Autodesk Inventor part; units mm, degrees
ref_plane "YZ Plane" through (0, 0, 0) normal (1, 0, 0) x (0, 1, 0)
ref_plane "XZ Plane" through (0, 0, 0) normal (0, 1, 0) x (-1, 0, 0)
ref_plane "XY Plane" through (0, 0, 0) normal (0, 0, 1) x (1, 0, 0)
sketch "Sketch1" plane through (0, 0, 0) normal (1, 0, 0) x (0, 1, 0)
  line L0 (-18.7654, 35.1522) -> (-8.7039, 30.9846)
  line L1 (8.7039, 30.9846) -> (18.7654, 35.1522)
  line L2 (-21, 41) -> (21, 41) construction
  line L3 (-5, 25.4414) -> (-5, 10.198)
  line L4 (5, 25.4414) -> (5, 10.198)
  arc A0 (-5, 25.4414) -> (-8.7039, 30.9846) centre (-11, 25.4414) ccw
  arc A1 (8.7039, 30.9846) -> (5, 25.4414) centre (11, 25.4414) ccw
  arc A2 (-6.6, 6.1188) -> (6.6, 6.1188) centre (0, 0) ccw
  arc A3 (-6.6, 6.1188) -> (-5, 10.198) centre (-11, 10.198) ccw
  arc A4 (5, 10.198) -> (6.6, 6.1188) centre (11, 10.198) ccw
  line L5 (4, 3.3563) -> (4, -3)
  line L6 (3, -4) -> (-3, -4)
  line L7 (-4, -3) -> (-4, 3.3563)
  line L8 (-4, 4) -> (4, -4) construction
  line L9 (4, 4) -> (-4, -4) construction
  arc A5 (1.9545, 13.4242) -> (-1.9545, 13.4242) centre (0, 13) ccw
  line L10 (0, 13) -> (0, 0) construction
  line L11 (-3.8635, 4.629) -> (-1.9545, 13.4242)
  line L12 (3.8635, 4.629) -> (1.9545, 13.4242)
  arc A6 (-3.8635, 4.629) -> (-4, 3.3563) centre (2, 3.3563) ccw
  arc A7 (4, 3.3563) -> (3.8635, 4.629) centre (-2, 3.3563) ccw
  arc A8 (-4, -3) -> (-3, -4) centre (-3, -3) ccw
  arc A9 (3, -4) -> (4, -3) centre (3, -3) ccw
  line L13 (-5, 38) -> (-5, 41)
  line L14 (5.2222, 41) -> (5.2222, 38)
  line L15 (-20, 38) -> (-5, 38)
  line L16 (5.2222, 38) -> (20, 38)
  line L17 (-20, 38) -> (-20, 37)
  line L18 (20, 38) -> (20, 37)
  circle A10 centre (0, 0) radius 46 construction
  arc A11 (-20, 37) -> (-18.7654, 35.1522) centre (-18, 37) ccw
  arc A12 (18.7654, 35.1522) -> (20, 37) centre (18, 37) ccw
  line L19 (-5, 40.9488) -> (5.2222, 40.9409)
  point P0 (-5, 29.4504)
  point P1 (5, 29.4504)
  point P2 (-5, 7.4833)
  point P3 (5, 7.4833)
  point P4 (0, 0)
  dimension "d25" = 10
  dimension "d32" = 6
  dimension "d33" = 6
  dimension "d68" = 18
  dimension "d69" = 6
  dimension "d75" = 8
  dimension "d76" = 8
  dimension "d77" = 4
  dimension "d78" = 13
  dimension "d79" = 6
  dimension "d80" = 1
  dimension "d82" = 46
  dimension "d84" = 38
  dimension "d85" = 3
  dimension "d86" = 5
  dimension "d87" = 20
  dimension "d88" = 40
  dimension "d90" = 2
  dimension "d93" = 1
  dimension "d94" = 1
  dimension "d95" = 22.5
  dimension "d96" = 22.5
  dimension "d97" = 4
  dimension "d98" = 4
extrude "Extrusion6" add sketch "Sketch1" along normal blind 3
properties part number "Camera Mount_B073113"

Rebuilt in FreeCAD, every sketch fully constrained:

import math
import FreeCAD as App
import Part
import Sketcher
from FreeCAD import Vector

doc = App.newDocument("Part")
body = doc.addObject("PartDesign::Body", "Body")

sketch1 = body.newObject("Sketcher::SketchObject", "Sketch")
sketch1.AttachmentSupport = (doc.getObject("YZ_Plane"), [""])
sketch1.MapMode = "FlatFace"
sketch1.addGeometry([
    Part.ArcOfCircle(Part.Circle(Vector(-18, 37, 0), Vector(0, 0, 1), 2), math.radians(180), math.radians(247.499572)),
    Part.LineSegment(Vector(-18.7654, 35.1522, 0), Vector(-8.7039, 30.9846, 0)),
    Part.ArcOfCircle(Part.Circle(Vector(-11, 25.4414, 0), Vector(0, 0, 1), 6), math.radians(0), math.radians(67.499723)),
    Part.LineSegment(Vector(-5, 25.4414, 0), Vector(-5, 10.198, 0)),
    Part.ArcOfCircle(Part.Circle(Vector(-11, 10.198, 0), Vector(0, 0, 1), 5.999989), math.radians(-42.833319), math.radians(0)),
    Part.ArcOfCircle(Part.Circle(Vector(0, 0, 0), Vector(0, 0, 1), 8.999984), math.radians(137.166681), math.radians(402.833319)),
    Part.ArcOfCircle(Part.Circle(Vector(11, 10.198, 0), Vector(0, 0, 1), 6), math.radians(180), math.radians(222.833319)),
    Part.LineSegment(Vector(5, 10.198, 0), Vector(5, 25.4414, 0)),
    Part.ArcOfCircle(Part.Circle(Vector(11, 25.4414, 0), Vector(0, 0, 1), 5.999928), math.radians(112.500277), math.radians(180)),
    Part.LineSegment(Vector(8.7039, 30.9846, 0), Vector(18.7654, 35.1522, 0)),
    Part.ArcOfCircle(Part.Circle(Vector(18, 37, 0), Vector(0, 0, 1), 2.00005), math.radians(-67.499572), math.radians(0)),
    Part.LineSegment(Vector(20, 37, 0), Vector(20, 38, 0)),
    Part.LineSegment(Vector(20, 38, 0), Vector(5.2222, 38, 0)),
    Part.LineSegment(Vector(5.2222, 38, 0), Vector(5.2222, 40.9409, 0)),
    Part.LineSegment(Vector(5.2222, 40.9409, 0), Vector(-5, 40.9488, 0)),
    Part.LineSegment(Vector(-5, 40.9488, 0), Vector(-5, 38, 0)),
    Part.LineSegment(Vector(-5, 38, 0), Vector(-20, 38, 0)),
    Part.LineSegment(Vector(-20, 38, 0), Vector(-20, 37, 0)),
    Part.ArcOfCircle(Part.Circle(Vector(-2.002905, 3.356145, 0), Vector(0, 0, 1), 6.002905), math.radians(0.001483), math.radians(12.241923)),
    Part.LineSegment(Vector(4, 3.3563, 0), Vector(4, -3, 0)),
    Part.ArcOfCircle(Part.Circle(Vector(3, -3, 0), Vector(0, 0, 1), 1), math.radians(-90), math.radians(0)),
    Part.LineSegment(Vector(3, -4, 0), Vector(-3, -4, 0)),
    Part.ArcOfCircle(Part.Circle(Vector(-3, -3, 0), Vector(0, 0, 1), 1), math.radians(180), math.radians(270)),
    Part.LineSegment(Vector(-4, -3, 0), Vector(-4, 3.3563, 0)),
    Part.ArcOfCircle(Part.Circle(Vector(1.997131, 3.356764, 0), Vector(0, 0, 1), 5.997131), math.radians(167.752163), math.radians(180.004432)),
    Part.LineSegment(Vector(-3.8635, 4.629, 0), Vector(-1.9545, 13.4242, 0)),
    Part.ArcOfCircle(Part.Circle(Vector(0, 13, 0), Vector(0, 0, 1), 2.000004), math.radians(12.245421), math.radians(167.754579)),
    Part.LineSegment(Vector(1.9545, 13.4242, 0), Vector(3.8635, 4.629, 0)),
], False)
sketch1.addConstraint([
    Sketcher.Constraint("Coincident", 0, 2, 1, 1),
    Sketcher.Constraint("Coincident", 1, 2, 2, 2),
    Sketcher.Constraint("Coincident", 2, 1, 3, 1),
    Sketcher.Constraint("Coincident", 3, 2, 4, 2),
    Sketcher.Constraint("Coincident", 4, 1, 5, 1),
    Sketcher.Constraint("Coincident", 5, 2, 6, 2),
    Sketcher.Constraint("Coincident", 6, 1, 7, 1),
    Sketcher.Constraint("Coincident", 7, 2, 8, 2),
    Sketcher.Constraint("Coincident", 8, 1, 9, 1),
    Sketcher.Constraint("Coincident", 9, 2, 10, 1),
    Sketcher.Constraint("Coincident", 10, 2, 11, 1),
    Sketcher.Constraint("Coincident", 11, 2, 12, 1),
    Sketcher.Constraint("Coincident", 12, 2, 13, 1),
    Sketcher.Constraint("Coincident", 13, 2, 14, 1),
    Sketcher.Constraint("Coincident", 14, 2, 15, 1),
    Sketcher.Constraint("Coincident", 15, 2, 16, 1),
    Sketcher.Constraint("Coincident", 16, 2, 17, 1),
    Sketcher.Constraint("Coincident", 17, 2, 0, 1),
    Sketcher.Constraint("Coincident", 18, 1, 19, 1),
    Sketcher.Constraint("Coincident", 19, 2, 20, 2),
    Sketcher.Constraint("Coincident", 20, 1, 21, 1),
    Sketcher.Constraint("Coincident", 21, 2, 22, 2),
    Sketcher.Constraint("Coincident", 22, 1, 23, 1),
    Sketcher.Constraint("Coincident", 23, 2, 24, 2),
    Sketcher.Constraint("Coincident", 24, 1, 25, 1),
    Sketcher.Constraint("Coincident", 25, 2, 26, 2),
    Sketcher.Constraint("Coincident", 26, 1, 27, 1),
    Sketcher.Constraint("Coincident", 27, 2, 18, 2),
    Sketcher.Constraint("Vertical", 3),
    Sketcher.Constraint("Vertical", 7),
    Sketcher.Constraint("Vertical", 11),
    Sketcher.Constraint("Horizontal", 12),
    Sketcher.Constraint("Vertical", 13),
    Sketcher.Constraint("Vertical", 15),
    Sketcher.Constraint("Horizontal", 16),
    Sketcher.Constraint("Vertical", 17),
    Sketcher.Constraint("Vertical", 19),
    Sketcher.Constraint("Horizontal", 21),
    Sketcher.Constraint("Vertical", 23),
    Sketcher.Constraint("Coincident", 5, 3, -1, 1),
    Sketcher.Constraint("PointOnObject", 26, 3, -2),
    Sketcher.Constraint("Radius", 0, 2.0),
    Sketcher.Constraint("Radius", 2, 6.0),
    Sketcher.Constraint("Radius", 4, 6.0),
    Sketcher.Constraint("Radius", 5, 9.0),
    Sketcher.Constraint("Radius", 6, 6.0),
    Sketcher.Constraint("Radius", 8, 6.0),
    Sketcher.Constraint("Radius", 10, 2.0),
    Sketcher.Constraint("Radius", 20, 1.0),
    Sketcher.Constraint("Radius", 22, 1.0),
    Sketcher.Constraint("Radius", 26, 2.0),
    Sketcher.Constraint("DistanceX", 21, 2, 21, 1, 6.0),
    Sketcher.Constraint("DistanceY", 11, 1, 11, 2, 1.0),
    Sketcher.Constraint("DistanceY", 17, 2, 17, 1, 1.0),
    Sketcher.Constraint("DistanceX", 0, 3, -1, 1, 18.0),
    Sketcher.Constraint("DistanceX", -1, 1, 10, 3, 18.0),
    Sketcher.Constraint("DistanceX", -1, 1, 20, 3, 3.0),
    Sketcher.Constraint("DistanceY", 20, 3, -1, 1, 3.0),
    Sketcher.Constraint("DistanceX", 22, 3, -1, 1, 3.0),
    Sketcher.Constraint("DistanceY", -1, 1, 26, 3, 13.0),
    Sketcher.Constraint("DistanceX", 2, 1, -1, 1, 5.0),
    Sketcher.Constraint("DistanceX", -1, 1, 6, 1, 5.0),
    Sketcher.Constraint("DistanceY", -1, 1, 11, 2, 38.0),
    Sketcher.Constraint("DistanceX", 14, 2, -1, 1, 5.0),
    Sketcher.Constraint("DistanceY", -1, 1, 15, 2, 38.0),
    Sketcher.Constraint("DistanceY", 19, 2, -1, 1, 3.0),
    Sketcher.Constraint("DistanceX", -1, 1, 20, 1, 3.0),
    Sketcher.Constraint("DistanceY", 22, 1, -1, 1, 3.0),
    Sketcher.Constraint("DistanceX", 18, 3, 24, 3, 4.0),
    Sketcher.Constraint("DistanceY", 10, 3, 11, 2, 1.0),
    Sketcher.Constraint("DistanceY", 0, 3, 16, 2, 1.0),
    Sketcher.Constraint("Distance", 25, 9.0),
    Sketcher.Constraint("Distance", 27, 9.0),
    Sketcher.Constraint("Radius", 18, 6.003),
    Sketcher.Constraint("DistanceX", 4, 1, -1, 1, 6.6),
    Sketcher.Constraint("DistanceX", -1, 1, 5, 2, 6.6),
    Sketcher.Constraint("DistanceY", 13, 1, 13, 2, 2.941),
    Sketcher.Constraint("DistanceX", 12, 2, 12, 1, 14.7778),
    Sketcher.Constraint("DistanceY", 3, 2, 3, 1, 15.2434),
    Sketcher.Constraint("DistanceY", 7, 1, 7, 2, 15.2434),
    Sketcher.Constraint("DistanceY", 15, 2, 15, 1, 2.9488),
    Sketcher.Constraint("DistanceY", 19, 2, 19, 1, 6.3563),
    Sketcher.Constraint("DistanceY", 23, 1, 23, 2, 6.3563),
    Sketcher.Constraint("DistanceX", 1, 2, -1, 1, 8.704),
    Sketcher.Constraint("DistanceY", -1, 1, 3, 2, 10.198),
    Sketcher.Constraint("DistanceY", -1, 1, 6, 1, 10.198),
    Sketcher.Constraint("DistanceX", -1, 1, 8, 1, 8.704),
    Sketcher.Constraint("DistanceY", -1, 1, 24, 1, 4.629),
    Sketcher.Constraint("DistanceY", -1, 1, 27, 2, 4.629),
    Sketcher.Constraint("DistanceY", 24, 3, 4, 1, 2.762),
    Sketcher.Constraint("DistanceX", 25, 2, 26, 1, 3.909),
    Sketcher.Constraint("Distance", 1, 10.8905),
    Sketcher.Constraint("Distance", 9, 10.8905),
    Sketcher.Constraint("DistanceY", -1, 1, 2, 3, 25.4414),
    Sketcher.Constraint("DistanceY", -1, 1, 8, 3, 25.4414),
])
pad1 = body.newObject("PartDesign::Pad", "Pad")
pad1.Profile = sketch1
pad1.Length = 3

doc.recompute()
